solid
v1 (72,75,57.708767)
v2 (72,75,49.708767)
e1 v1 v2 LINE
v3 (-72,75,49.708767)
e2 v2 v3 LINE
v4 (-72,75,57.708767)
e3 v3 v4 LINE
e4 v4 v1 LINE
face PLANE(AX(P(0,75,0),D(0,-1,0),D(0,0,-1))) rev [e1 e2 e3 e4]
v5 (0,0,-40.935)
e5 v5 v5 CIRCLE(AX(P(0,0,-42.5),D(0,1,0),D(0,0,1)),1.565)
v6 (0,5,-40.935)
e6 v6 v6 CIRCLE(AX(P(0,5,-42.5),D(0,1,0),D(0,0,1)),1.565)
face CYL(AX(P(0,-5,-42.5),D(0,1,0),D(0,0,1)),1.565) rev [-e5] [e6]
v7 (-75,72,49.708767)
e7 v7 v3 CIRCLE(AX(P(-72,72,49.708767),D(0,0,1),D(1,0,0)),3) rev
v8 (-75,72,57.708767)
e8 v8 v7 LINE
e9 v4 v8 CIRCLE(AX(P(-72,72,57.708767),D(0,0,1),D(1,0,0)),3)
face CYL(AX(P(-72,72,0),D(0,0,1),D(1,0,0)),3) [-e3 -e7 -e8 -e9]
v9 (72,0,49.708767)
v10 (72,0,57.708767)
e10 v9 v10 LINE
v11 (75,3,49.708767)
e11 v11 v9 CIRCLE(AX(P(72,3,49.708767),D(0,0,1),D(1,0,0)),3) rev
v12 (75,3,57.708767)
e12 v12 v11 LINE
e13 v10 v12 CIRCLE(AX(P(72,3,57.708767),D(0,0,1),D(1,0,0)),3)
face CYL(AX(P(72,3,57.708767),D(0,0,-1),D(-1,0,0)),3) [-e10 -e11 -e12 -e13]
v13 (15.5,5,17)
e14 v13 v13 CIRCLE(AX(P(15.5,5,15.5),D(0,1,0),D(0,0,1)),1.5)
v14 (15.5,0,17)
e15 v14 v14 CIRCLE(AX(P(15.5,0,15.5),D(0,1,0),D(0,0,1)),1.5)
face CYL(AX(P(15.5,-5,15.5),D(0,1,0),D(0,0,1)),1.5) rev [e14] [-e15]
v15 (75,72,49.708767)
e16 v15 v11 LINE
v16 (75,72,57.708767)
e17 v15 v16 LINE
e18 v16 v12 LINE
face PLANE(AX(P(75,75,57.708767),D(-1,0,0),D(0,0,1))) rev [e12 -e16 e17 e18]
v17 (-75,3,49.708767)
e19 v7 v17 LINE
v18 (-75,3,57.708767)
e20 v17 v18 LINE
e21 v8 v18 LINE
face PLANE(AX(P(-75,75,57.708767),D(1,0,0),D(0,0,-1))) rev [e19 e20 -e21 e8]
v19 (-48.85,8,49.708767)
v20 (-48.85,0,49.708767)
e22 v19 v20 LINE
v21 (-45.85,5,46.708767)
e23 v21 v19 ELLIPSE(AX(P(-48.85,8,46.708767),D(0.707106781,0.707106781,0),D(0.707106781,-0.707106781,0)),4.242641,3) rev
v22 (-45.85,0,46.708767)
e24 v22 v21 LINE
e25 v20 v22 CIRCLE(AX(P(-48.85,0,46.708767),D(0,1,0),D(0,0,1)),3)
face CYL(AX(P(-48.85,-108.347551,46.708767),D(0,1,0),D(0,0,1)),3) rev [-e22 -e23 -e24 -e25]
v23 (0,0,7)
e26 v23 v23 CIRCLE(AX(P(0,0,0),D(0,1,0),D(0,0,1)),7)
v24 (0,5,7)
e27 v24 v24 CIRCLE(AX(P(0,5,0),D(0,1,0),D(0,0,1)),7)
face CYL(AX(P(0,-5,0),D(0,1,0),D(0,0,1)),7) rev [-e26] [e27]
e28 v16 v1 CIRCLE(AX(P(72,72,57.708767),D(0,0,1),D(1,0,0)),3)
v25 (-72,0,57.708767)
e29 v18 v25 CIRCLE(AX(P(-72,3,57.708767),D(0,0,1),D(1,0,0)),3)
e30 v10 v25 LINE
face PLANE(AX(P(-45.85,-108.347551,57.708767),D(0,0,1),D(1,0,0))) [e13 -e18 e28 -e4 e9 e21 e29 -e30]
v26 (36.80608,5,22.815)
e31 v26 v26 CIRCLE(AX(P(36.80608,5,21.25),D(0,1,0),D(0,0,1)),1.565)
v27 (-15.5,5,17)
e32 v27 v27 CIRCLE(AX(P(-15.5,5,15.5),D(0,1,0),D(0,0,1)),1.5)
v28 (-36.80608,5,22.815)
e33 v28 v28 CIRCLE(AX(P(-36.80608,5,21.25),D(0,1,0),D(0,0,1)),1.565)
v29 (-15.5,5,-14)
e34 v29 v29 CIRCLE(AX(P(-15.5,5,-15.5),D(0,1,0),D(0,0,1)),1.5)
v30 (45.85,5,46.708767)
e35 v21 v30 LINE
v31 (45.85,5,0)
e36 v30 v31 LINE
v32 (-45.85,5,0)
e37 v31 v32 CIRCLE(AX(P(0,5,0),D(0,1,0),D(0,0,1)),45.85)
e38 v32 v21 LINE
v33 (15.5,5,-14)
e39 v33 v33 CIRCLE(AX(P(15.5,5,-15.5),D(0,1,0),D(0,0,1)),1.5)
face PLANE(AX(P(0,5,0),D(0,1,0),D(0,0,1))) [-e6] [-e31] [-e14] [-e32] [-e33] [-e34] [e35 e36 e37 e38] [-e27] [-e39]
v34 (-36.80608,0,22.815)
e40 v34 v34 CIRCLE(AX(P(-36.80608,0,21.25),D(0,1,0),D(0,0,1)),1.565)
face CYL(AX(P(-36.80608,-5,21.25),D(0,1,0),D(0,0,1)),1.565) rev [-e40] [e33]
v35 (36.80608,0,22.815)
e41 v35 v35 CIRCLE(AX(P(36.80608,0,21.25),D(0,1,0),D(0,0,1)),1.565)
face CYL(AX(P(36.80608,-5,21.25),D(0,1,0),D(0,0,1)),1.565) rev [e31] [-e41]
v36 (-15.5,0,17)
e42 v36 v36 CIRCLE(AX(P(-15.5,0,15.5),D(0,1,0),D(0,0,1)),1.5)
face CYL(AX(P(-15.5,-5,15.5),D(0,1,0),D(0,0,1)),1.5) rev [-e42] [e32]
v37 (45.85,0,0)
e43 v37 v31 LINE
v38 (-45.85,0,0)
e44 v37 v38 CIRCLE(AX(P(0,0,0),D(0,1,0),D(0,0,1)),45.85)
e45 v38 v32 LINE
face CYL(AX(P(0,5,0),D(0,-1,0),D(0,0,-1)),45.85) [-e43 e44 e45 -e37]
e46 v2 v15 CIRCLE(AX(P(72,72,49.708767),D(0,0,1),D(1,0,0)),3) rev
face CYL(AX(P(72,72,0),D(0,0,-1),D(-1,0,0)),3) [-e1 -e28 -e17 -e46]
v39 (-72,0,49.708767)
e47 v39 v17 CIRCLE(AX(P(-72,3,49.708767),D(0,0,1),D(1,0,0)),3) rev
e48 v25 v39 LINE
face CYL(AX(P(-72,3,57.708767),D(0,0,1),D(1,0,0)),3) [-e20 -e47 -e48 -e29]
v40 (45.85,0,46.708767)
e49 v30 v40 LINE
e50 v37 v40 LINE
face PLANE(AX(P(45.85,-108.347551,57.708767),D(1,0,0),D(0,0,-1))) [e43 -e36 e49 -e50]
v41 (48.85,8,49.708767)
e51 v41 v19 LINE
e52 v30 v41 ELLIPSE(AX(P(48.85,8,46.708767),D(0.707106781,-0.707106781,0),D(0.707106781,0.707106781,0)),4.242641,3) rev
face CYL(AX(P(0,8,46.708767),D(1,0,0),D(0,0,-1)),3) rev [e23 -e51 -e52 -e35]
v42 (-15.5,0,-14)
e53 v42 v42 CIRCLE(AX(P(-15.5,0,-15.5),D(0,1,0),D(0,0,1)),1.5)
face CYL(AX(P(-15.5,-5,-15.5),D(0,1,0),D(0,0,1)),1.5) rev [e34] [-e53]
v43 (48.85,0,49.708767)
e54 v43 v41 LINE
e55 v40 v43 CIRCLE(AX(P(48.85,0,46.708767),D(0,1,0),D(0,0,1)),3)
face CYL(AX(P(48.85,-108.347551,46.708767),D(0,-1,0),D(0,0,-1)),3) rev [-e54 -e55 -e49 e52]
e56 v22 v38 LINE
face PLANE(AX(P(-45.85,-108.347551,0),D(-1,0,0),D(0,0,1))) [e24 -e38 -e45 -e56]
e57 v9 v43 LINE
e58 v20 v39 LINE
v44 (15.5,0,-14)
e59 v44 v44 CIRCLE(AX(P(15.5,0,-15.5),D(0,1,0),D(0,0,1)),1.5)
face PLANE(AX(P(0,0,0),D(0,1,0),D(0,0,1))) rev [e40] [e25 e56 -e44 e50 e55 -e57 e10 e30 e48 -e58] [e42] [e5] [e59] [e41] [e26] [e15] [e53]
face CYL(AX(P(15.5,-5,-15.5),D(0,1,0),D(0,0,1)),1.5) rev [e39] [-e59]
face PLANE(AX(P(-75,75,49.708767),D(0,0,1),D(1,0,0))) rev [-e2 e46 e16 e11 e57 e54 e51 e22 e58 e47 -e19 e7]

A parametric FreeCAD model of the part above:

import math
import FreeCAD as App
import Part
import Sketcher

V = App.Vector


def edges_at(feature, points):
    """Names of the edges that pass closest to the given points."""
    edges = feature.Shape.Edges
    near = lambda p: min(range(len(edges)), key=lambda i: edges[i].distToShape(Part.Vertex(*p))[0])
    return sorted({f"Edge{near(p) + 1}" for p in points})


def add_polygon(sketch, points):
    """Adds a closed chain of lines whose ends are joined by coincident constraints."""
    first, n = sketch.GeometryCount, len(points)
    for a, b in zip(points, points[1:] + points[:1]):
        sketch.addGeometry(Part.LineSegment(App.Vector(*a, 0), App.Vector(*b, 0)), False)
    for i in range(n):
        sketch.addConstraint(Sketcher.Constraint("Coincident", first + i, 2, first + (i + 1) % n, 1))

doc = App.newDocument("Part")
body = doc.addObject("PartDesign::Body", "Body")

# Sketch on XZ plane
sketch1 = body.newObject("Sketcher::SketchObject", "Sketch")
sketch1.AttachmentSupport = (doc.getObject("XZ_Plane"), [""])
sketch1.MapMode = "FlatFace"
sketch1.addGeometry(Part.Circle(V(0, 0, 0), V(0, 0, 1), 46), False)
sketch1.addConstraint([
    Sketcher.Constraint("Coincident", 0, 3, -1, 1),
    Sketcher.Constraint("Diameter", 0, 91.7),
])
pad1 = body.newObject("PartDesign::Pad", "Pad")
pad1.Profile = sketch1
pad1.Length = 5
pad1.Reversed = True

# Sketch on XZ plane
sketch2 = body.newObject("Sketcher::SketchObject", "Sketch001")
sketch2.AttachmentSupport = (doc.getObject("XZ_Plane"), [""])
sketch2.MapMode = "FlatFace"
sketch2.AttachmentOffset = App.Placement(V(0, 0, -5), App.Rotation())
sketch2.addGeometry([
    Part.Circle(V(0, -42.5, 0), V(0, 0, 1), 1.6),
    Part.Circle(V(36.8, 21.2, 0), V(0, 0, 1), 1.6),
    Part.Circle(V(-36.8, 21.2, 0), V(0, 0, 1), 1.6),
], False)
sketch2.addConstraint([
    Sketcher.Constraint("Equal", 0, 1),
    Sketcher.Constraint("Equal", 1, 2),
    Sketcher.Constraint("Symmetric", 1, 3, 2, 3, -2),
    Sketcher.Constraint("PointOnObject", 0, 3, -2),
    Sketcher.Constraint("Diameter", 0, 3.13),
    Sketcher.Constraint("DistanceY", 0, 3, -1, 1, 42.5),
    Sketcher.Constraint("DistanceY", -1, 1, 1, 3, 21.25),
    Sketcher.Constraint("DistanceX", -1, 1, 1, 3, 36.80608),
])
pocket1 = body.newObject("PartDesign::Pocket", "Pocket")
pocket1.Profile = sketch2
pocket1.Length = 10
pocket1.Reversed = True

# Sketch on XZ plane
sketch3 = body.newObject("Sketcher::SketchObject", "Sketch002")
sketch3.AttachmentSupport = (doc.getObject("XZ_Plane"), [""])
sketch3.MapMode = "FlatFace"
sketch3.AttachmentOffset = App.Placement(V(0, 0, -5), App.Rotation())
sketch3.addGeometry([
    Part.Circle(V(-15.5, -15.5, 0), V(0, 0, 1), 1.5),  # 0
    Part.Circle(V(15.5, -15.5, 0), V(0, 0, 1), 1.5),  # 1
    Part.Circle(V(15.5, 15.5, 0), V(0, 0, 1), 1.5),  # 2
    Part.Circle(V(-15.5, 15.5, 0), V(0, 0, 1), 1.5),  # 3
    Part.Circle(V(0, 0, 0), V(0, 0, 1), 7),  # 4
], False)
sketch3.addConstraint([
    Sketcher.Constraint("Coincident", 4, 3, -1, 1),
    Sketcher.Constraint("Equal", 0, 1),
    Sketcher.Constraint("Equal", 1, 2),
    Sketcher.Constraint("Equal", 2, 3),
    Sketcher.Constraint("Symmetric", 0, 3, 2, 3, -1, 1),
    Sketcher.Constraint("Symmetric", 1, 3, 3, 3, -1, 1),
    Sketcher.Constraint("Symmetric", 0, 3, 1, 3, -2),
    Sketcher.Constraint("Diameter", 0, 3.0),
    Sketcher.Constraint("Diameter", 4, 14.0),
    Sketcher.Constraint("DistanceX", 0, 3, 1, 3, 31.0),
    Sketcher.Constraint("DistanceY", 1, 3, 2, 3, 31.0),
])
pocket2 = body.newObject("PartDesign::Pocket", "Pocket001")
pocket2.Profile = sketch3
pocket2.Length = 10
pocket2.Reversed = True

# Sketch on XZ plane
sketch4 = body.newObject("Sketcher::SketchObject", "Sketch003")
sketch4.AttachmentSupport = (doc.getObject("XZ_Plane"), [""])
sketch4.MapMode = "FlatFace"
sketch4.addGeometry([
    Part.LineSegment(V(-46, 0, 0), V(-46, 58, 0)),
    Part.LineSegment(V(-46, 58, 0), V(46, 58, 0)),
    Part.LineSegment(V(46, 58, 0), V(46, 0, 0)),
    Part.ArcOfCircle(Part.Circle(V(0, 0, 0), V(0, 0, 1), 46), math.radians(0), math.radians(180)),
], False)
sketch4.addConstraint([
    Sketcher.Constraint("Coincident", 0, 2, 1, 1),
    Sketcher.Constraint("Coincident", 1, 2, 2, 1),
    Sketcher.Constraint("Tangent", 2, 2, 3, 1),
    Sketcher.Constraint("Tangent", 3, 2, 0, 1),
    Sketcher.Constraint("Vertical", 0),
    Sketcher.Constraint("Horizontal", 1),
    Sketcher.Constraint("Vertical", 2),
    Sketcher.Constraint("Coincident", 3, 3, -1, 1),
    Sketcher.Constraint("Radius", 3, 45.85),
    Sketcher.Constraint("DistanceY", 0, 1, 0, 2, 57.708767),
])
pad2 = body.newObject("PartDesign::Pad", "Pad001")
pad2.Profile = sketch4
pad2.Length = 5
pad2.Reversed = True

# Sketch on XZ plane
sketch5 = body.newObject("Sketcher::SketchObject", "Sketch004")
sketch5.AttachmentSupport = (doc.getObject("XZ_Plane"), [""])
sketch5.MapMode = "FlatFace"
add_polygon(sketch5, [(-75, 50), (-75, 58), (75, 58), (75, 50)])  # lines 0-3
sketch5.addConstraint([
    Sketcher.Constraint("Vertical", 0),
    Sketcher.Constraint("Horizontal", 1),
    Sketcher.Constraint("Vertical", 2),
    Sketcher.Constraint("Horizontal", 3),
    Sketcher.Constraint("DistanceX", 1, 1, 1, 2, 150.0),
    Sketcher.Constraint("DistanceY", 0, 1, 0, 2, 8.0),
    Sketcher.Constraint("DistanceX", 0, 2, -1, 1, 75.0),
    Sketcher.Constraint("DistanceY", -1, 1, 0, 2, 57.708767),
])
pad3 = body.newObject("PartDesign::Pad", "Pad002")
pad3.Profile = sketch5
pad3.Length = 75
pad3.Reversed = True
doc.recompute()

fillet = body.newObject("PartDesign::Fillet", "Fillet")
fillet.Base = (pad3, edges_at(pad3, [(-45.85, 2.5, 49.709), (0, 5, 49.709), (45.85, 2.5, 49.709)]))
fillet.Radius = 3
doc.recompute()

fillet2 = body.newObject("PartDesign::Fillet", "Fillet001")
fillet2.Base = (fillet, edges_at(fillet, [
    (-75, 0, 53.709),
    (75, 0, 53.709),
    (-75, 75, 53.709),
    (75, 75, 53.709),
]))
fillet2.Radius = 3

doc.recompute()
